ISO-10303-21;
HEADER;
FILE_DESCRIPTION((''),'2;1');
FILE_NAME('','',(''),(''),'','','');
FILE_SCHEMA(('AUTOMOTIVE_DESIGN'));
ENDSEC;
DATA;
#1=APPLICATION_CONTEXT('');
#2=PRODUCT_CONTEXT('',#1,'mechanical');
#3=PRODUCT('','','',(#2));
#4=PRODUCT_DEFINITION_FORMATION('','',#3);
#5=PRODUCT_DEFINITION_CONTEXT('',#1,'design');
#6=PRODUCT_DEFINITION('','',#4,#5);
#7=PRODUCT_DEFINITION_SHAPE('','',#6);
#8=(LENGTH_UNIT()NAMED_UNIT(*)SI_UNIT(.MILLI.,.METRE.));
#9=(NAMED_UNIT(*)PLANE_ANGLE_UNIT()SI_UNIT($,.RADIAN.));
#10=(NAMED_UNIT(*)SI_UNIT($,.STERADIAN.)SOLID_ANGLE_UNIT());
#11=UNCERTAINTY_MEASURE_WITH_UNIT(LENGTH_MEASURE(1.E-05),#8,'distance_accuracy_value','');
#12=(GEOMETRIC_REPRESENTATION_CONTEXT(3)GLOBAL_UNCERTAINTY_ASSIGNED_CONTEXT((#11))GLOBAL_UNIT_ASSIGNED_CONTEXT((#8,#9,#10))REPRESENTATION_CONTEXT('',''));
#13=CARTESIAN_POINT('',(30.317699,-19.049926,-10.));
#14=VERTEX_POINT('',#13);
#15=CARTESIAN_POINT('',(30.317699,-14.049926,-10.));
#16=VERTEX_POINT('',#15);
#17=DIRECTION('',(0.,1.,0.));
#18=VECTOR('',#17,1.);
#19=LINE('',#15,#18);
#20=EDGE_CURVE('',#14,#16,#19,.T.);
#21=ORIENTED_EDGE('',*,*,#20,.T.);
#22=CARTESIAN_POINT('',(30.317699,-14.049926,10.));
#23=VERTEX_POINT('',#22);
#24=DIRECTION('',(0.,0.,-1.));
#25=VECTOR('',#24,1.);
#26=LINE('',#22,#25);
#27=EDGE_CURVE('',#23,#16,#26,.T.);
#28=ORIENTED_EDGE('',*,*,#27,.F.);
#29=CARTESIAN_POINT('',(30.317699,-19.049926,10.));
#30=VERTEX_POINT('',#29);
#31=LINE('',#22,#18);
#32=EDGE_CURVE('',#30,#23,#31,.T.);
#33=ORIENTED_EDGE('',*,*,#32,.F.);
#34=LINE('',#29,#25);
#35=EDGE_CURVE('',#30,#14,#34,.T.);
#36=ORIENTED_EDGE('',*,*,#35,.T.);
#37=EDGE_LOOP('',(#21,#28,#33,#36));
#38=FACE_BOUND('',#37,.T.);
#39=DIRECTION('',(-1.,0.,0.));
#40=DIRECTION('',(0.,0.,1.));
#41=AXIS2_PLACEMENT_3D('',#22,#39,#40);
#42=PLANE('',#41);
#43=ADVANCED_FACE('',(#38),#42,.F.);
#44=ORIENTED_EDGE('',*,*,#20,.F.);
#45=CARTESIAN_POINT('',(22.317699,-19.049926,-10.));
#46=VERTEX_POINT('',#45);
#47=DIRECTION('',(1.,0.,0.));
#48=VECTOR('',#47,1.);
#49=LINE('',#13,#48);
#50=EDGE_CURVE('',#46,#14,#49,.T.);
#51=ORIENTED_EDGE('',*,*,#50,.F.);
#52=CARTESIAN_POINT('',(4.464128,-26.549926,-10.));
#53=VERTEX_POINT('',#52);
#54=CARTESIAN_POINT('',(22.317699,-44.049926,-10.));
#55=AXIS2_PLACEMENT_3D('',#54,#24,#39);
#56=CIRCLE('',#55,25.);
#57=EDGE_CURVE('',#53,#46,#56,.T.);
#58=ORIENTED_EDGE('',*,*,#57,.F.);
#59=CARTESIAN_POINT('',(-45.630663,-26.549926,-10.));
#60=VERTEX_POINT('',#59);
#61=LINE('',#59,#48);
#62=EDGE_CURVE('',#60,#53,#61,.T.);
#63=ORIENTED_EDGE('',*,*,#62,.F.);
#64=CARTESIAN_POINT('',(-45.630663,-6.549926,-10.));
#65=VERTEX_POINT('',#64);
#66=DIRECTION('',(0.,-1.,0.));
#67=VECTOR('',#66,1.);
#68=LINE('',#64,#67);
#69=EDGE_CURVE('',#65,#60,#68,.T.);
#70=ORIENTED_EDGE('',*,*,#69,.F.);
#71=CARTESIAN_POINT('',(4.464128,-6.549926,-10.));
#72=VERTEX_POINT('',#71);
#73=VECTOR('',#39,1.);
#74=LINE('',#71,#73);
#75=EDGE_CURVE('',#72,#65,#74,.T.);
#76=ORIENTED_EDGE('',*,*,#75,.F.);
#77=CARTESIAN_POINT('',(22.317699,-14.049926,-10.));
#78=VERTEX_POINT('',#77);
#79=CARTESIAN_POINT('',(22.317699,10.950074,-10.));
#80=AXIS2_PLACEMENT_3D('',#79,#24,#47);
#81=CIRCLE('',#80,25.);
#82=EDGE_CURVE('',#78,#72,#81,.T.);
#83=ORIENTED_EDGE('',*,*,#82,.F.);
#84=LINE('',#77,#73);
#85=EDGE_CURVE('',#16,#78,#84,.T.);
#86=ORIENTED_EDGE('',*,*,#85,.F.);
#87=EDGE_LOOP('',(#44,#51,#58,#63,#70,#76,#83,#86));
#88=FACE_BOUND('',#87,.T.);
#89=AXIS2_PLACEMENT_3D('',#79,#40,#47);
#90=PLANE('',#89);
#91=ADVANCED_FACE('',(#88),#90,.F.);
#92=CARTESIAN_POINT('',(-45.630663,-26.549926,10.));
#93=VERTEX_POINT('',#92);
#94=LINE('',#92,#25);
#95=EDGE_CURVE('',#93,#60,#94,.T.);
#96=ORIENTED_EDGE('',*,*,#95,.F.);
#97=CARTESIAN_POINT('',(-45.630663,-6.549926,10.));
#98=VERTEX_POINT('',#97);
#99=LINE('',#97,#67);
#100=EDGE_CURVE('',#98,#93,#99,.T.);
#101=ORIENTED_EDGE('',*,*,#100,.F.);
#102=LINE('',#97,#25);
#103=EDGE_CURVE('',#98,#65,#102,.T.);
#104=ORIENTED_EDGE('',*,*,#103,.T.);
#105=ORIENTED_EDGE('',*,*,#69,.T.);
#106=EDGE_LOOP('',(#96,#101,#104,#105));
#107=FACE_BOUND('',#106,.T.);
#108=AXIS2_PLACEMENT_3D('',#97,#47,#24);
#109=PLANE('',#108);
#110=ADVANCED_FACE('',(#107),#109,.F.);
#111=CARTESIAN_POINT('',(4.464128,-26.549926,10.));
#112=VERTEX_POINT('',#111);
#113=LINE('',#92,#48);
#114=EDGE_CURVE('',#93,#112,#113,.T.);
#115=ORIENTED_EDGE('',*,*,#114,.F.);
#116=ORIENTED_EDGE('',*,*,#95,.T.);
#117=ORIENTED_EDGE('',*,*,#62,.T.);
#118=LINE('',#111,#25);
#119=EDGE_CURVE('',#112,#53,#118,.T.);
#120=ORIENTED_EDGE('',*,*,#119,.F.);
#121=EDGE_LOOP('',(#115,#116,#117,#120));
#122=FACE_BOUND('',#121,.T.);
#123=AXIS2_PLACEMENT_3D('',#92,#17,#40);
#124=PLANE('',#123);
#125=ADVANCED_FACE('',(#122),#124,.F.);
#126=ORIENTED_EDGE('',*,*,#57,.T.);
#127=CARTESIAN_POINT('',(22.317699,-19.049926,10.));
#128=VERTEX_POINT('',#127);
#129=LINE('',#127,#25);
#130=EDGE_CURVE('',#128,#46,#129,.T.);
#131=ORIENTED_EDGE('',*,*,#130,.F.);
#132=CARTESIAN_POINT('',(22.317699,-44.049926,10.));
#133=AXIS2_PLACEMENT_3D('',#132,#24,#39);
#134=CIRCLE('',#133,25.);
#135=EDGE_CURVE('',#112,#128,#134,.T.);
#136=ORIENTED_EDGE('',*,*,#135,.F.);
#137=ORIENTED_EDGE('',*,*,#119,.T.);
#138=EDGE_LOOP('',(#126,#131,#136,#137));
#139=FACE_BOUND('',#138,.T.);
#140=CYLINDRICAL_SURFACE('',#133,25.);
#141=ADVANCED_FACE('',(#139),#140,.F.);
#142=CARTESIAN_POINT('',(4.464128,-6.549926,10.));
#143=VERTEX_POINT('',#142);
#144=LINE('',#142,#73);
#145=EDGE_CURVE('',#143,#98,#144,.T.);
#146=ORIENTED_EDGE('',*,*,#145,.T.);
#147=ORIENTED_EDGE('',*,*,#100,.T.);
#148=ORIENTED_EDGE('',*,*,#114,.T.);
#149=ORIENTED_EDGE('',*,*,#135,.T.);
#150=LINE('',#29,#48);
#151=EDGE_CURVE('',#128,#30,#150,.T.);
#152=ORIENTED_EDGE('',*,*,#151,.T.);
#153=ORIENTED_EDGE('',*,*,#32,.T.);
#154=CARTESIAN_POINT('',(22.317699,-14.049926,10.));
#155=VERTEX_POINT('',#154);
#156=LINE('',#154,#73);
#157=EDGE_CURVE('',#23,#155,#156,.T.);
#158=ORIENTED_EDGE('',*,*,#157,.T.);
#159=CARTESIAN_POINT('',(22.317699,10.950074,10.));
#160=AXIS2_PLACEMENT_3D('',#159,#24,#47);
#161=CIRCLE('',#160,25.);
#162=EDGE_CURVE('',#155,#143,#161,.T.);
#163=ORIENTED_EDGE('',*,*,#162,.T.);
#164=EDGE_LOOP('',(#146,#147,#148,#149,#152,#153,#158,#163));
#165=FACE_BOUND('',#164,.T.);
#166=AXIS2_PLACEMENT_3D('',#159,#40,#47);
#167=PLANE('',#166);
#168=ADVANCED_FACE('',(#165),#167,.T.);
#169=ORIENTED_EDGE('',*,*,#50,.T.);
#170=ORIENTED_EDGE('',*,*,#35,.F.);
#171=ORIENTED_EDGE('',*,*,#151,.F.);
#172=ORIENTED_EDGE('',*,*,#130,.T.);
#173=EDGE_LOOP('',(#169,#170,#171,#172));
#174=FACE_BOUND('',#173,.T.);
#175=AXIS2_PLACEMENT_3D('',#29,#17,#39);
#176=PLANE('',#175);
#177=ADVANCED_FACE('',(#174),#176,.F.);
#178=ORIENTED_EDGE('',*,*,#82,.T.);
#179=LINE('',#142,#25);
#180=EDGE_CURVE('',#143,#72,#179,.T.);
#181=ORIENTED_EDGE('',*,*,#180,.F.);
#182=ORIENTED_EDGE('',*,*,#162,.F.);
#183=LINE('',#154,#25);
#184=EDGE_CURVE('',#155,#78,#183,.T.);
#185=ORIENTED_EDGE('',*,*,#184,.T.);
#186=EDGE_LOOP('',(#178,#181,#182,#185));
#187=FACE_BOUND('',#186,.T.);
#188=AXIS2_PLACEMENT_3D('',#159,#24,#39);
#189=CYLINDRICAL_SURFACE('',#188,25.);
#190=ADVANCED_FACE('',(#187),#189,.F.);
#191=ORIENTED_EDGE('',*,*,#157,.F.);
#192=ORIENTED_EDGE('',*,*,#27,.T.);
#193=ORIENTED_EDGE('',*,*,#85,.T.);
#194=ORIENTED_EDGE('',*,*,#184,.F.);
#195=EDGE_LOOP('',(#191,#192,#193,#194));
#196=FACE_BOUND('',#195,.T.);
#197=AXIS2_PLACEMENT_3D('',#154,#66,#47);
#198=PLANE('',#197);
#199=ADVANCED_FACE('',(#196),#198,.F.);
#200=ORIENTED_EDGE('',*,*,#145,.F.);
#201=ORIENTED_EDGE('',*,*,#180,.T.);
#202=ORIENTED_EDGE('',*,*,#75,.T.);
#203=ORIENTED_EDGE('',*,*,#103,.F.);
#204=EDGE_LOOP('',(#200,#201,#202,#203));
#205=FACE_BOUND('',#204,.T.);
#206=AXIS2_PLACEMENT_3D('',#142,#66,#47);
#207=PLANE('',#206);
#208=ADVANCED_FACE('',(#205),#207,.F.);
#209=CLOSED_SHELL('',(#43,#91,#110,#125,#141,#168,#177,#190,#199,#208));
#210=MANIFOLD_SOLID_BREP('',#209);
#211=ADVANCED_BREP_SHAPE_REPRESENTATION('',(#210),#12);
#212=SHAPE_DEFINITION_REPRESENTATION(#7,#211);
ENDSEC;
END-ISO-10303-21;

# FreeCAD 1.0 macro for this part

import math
import FreeCAD as App
import Part
import Sketcher
from FreeCAD import Vector

doc = App.newDocument("Part")
body = doc.addObject("PartDesign::Body", "Body")

sketch1 = doc.addObject("Sketcher::SketchObject", "Sketch")
body.addObject(sketch1)
sketch1.AttachmentSupport = (doc.XY_Plane, [""])
sketch1.MapMode = "FlatFace"
sketch1.addGeometry([
    Part.LineSegment(Vector(4, -7, 0), Vector(-46, -7, 0)),
    Part.LineSegment(Vector(-46, -7, 0), Vector(-46, -27, 0)),
    Part.LineSegment(Vector(-46, -27, 0), Vector(4, -27, 0)),
    Part.ArcOfCircle(Part.Circle(Vector(22, -44, 0), Vector(0, 0, 1), 25), math.radians(90), math.radians(136)),
    Part.LineSegment(Vector(22, -19, 0), Vector(30, -19, 0)),
    Part.LineSegment(Vector(30, -19, 0), Vector(30, -14, 0)),
    Part.LineSegment(Vector(30, -14, 0), Vector(22, -14, 0)),
    Part.ArcOfCircle(Part.Circle(Vector(22, 11, 0), Vector(0, 0, 1), 25), math.radians(-136), math.radians(-90)),
], False)
sketch1.addConstraint([
    Sketcher.Constraint("Coincident", 0, 2, 1, 1),
    Sketcher.Constraint("Coincident", 1, 2, 2, 1),
    Sketcher.Constraint("Coincident", 2, 2, 3, 2),
    Sketcher.Constraint("Tangent", 3, 1, 4, 1),
    Sketcher.Constraint("Coincident", 4, 2, 5, 1),
    Sketcher.Constraint("Coincident", 5, 2, 6, 1),
    Sketcher.Constraint("Tangent", 6, 2, 7, 2),
    Sketcher.Constraint("Coincident", 7, 1, 0, 1),
    Sketcher.Constraint("Horizontal", 0),
    Sketcher.Constraint("Vertical", 1),
    Sketcher.Constraint("Horizontal", 2),
    Sketcher.Constraint("Horizontal", 4),
    Sketcher.Constraint("Vertical", 5),
    Sketcher.Constraint("Horizontal", 6),
    Sketcher.Constraint("Equal", 3, 7),
    Sketcher.Constraint("Vertical", 3, 3, 7, 3),
    Sketcher.Constraint("Vertical", 2, 2, 7, 1),
    Sketcher.Constraint("Radius", 3, 25.0),
    Sketcher.Constraint("DistanceX", 4, 1, 4, 2, 8.0),
    Sketcher.Constraint("DistanceY", 1, 2, 1, 1, 20.0),
    Sketcher.Constraint("DistanceY", 5, 1, 5, 2, 5.0),
    Sketcher.Constraint("DistanceX", 0, 2, 0, 1, 50.09479),
    Sketcher.Constraint("DistanceX", -1, 1, 3, 3, 22.317699),
    Sketcher.Constraint("DistanceY", 3, 3, -1, 1, 44.049926),
])
pad1 = doc.addObject("PartDesign::Pad", "Pad")
body.addObject(pad1)
pad1.Profile = sketch1
pad1.Length = 20
pad1.Midplane = True

doc.recompute()
